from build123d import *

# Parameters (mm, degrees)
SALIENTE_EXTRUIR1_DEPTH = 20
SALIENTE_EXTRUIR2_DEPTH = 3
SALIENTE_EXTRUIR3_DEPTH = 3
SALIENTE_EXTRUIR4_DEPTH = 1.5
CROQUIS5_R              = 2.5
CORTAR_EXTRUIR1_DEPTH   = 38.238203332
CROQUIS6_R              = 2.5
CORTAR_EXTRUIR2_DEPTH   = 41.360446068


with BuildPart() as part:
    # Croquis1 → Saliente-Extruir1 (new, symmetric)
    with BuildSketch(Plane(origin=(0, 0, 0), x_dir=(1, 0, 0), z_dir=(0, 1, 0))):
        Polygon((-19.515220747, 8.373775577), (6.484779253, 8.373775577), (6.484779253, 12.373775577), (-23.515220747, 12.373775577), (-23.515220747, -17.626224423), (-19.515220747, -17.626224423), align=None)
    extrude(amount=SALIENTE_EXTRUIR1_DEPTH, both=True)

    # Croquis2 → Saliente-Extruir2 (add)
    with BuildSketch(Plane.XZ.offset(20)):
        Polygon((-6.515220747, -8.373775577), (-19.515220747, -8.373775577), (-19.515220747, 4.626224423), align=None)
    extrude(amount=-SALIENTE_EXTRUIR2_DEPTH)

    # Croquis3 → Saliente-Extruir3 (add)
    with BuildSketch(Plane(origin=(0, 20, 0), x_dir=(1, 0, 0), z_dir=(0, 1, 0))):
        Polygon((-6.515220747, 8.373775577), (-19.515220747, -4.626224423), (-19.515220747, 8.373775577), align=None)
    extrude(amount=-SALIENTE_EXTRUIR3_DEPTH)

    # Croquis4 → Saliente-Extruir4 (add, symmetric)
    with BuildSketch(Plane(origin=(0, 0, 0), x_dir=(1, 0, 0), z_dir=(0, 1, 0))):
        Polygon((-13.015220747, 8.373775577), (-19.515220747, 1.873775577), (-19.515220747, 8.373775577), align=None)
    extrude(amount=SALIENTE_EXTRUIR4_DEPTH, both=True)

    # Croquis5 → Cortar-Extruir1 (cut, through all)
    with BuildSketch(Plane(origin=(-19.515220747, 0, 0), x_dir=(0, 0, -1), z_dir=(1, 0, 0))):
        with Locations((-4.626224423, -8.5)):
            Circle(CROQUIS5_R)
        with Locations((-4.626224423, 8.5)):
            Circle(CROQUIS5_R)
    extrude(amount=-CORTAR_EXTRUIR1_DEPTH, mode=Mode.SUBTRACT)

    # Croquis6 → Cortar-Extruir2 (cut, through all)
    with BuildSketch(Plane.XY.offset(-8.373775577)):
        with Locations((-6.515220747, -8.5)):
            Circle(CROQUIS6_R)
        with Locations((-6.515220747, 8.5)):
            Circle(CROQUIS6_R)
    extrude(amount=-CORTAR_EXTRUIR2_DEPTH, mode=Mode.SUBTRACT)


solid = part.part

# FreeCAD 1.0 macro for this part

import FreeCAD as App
import Part
import Sketcher

doc = App.newDocument("Part")
params = doc.addObject("Spreadsheet::Sheet", "Params")
for row, (alias, value) in enumerate([
    ("sketch1_width", "26 mm"),
    ("sketch1_width2", "30 mm"),
    ("pad1_length", "40 mm"),
    ("sketch2_width", "13 mm"),
    ("pad2_length", "3 mm"),
    ("sketch3_width", "13 mm"),
    ("pad3_length", "3 mm"),
    ("sketch4_width", "6.5 mm"),
    ("pad4_length", "3 mm"),
    ("sketch5_diameter", "5 mm"),
    ("sketch6_diameter", "5 mm"),
], start=1):
    params.set(f"A{row}", alias)
    params.set(f"B{row}", "=" + value)
    params.setAlias(f"B{row}", alias)

body = doc.addObject("PartDesign::Body", "Body")

sketch1 = body.newObject("Sketcher::SketchObject", "Sketch")
sketch1.AttachmentSupport = (doc.getObject("XZ_Plane"), [""])
sketch1.MapMode = "FlatFace"
sketch1.addGeometry([
    Part.LineSegment(App.Vector(-19.5, -8.4, 0), App.Vector(6.5, -8.4, 0)),
    Part.LineSegment(App.Vector(6.5, -8.4, 0), App.Vector(6.5, -12.4, 0)),
    Part.LineSegment(App.Vector(6.5, -12.4, 0), App.Vector(-23.5, -12.4, 0)),
    Part.LineSegment(App.Vector(-23.5, -12.4, 0), App.Vector(-23.5, 17.6, 0)),
    Part.LineSegment(App.Vector(-23.5, 17.6, 0), App.Vector(-19.5, 17.6, 0)),
    Part.LineSegment(App.Vector(-19.5, 17.6, 0), App.Vector(-19.5, -8.4, 0)),
], False)
sketch1.addConstraint([
    Sketcher.Constraint("Coincident", 0, 2, 1, 1),
    Sketcher.Constraint("Coincident", 1, 2, 2, 1),
    Sketcher.Constraint("Coincident", 2, 2, 3, 1),
    Sketcher.Constraint("Coincident", 3, 2, 4, 1),
    Sketcher.Constraint("Coincident", 4, 2, 5, 1),
    Sketcher.Constraint("Coincident", 5, 2, 0, 1),
    Sketcher.Constraint("Horizontal", 0),
    Sketcher.Constraint("Vertical", 1),
    Sketcher.Constraint("Horizontal", 2),
    Sketcher.Constraint("Vertical", 3),
    Sketcher.Constraint("Horizontal", 4),
    Sketcher.Constraint("Vertical", 5),
    Sketcher.Constraint("Equal", 4, 1),
    Sketcher.Constraint("Equal", 2, 3),
    Sketcher.Constraint("DistanceX", 0, 1, 0, 2, 26.0),
    Sketcher.Constraint("DistanceX", 2, 2, 2, 1, 30.0),
    Sketcher.Constraint("DistanceX", -1, 1, 0, 2, 6.484779),
    Sketcher.Constraint("DistanceY", 0, 2, -1, 1, 8.373776),
])
sketch1.setExpression("Constraints[14]", "Params.sketch1_width")
sketch1.setExpression("Constraints[15]", "Params.sketch1_width2")
pad1 = body.newObject("PartDesign::Pad", "Pad")
pad1.Profile = sketch1
pad1.setExpression("Length", "Params.pad1_length")
pad1.Midplane = True

sketch2 = body.newObject("Sketcher::SketchObject", "Sketch001")
sketch2.AttachmentSupport = (doc.getObject("XZ_Plane"), [""])
sketch2.MapMode = "FlatFace"
sketch2.AttachmentOffset = App.Placement(App.Vector(0, 0, 20), App.Rotation())
sketch2.addGeometry([
    Part.LineSegment(App.Vector(-20, -8, 0), App.Vector(-7, -8, 0)),
    Part.LineSegment(App.Vector(-7, -8, 0), App.Vector(-20, 5, 0)),
    Part.LineSegment(App.Vector(-20, 5, 0), App.Vector(-20, -8, 0)),
], False)
sketch2.addConstraint([
    Sketcher.Constraint("Coincident", 0, 2, 1, 1),
    Sketcher.Constraint("Coincident", 1, 2, 2, 1),
    Sketcher.Constraint("Coincident", 2, 2, 0, 1),
    Sketcher.Constraint("Horizontal", 0),
    Sketcher.Constraint("Vertical", 2),
    Sketcher.Constraint("Equal", 0, 2),
    Sketcher.Constraint("DistanceX", 0, 1, 0, 2, 13.0),
    Sketcher.Constraint("DistanceX", 0, 2, -1, 1, 6.515221),
    Sketcher.Constraint("DistanceY", 0, 2, -1, 1, 8.373776),
])
sketch2.setExpression("Constraints[6]", "Params.sketch2_width")
pad2 = body.newObject("PartDesign::Pad", "Pad001")
pad2.Profile = sketch2
pad2.setExpression("Length", "Params.pad2_length")
pad2.Reversed = True

sketch3 = body.newObject("Sketcher::SketchObject", "Sketch002")
sketch3.AttachmentSupport = (doc.getObject("XZ_Plane"), [""])
sketch3.MapMode = "FlatFace"
sketch3.AttachmentOffset = App.Placement(App.Vector(0, 0, -20), App.Rotation())
sketch3.addGeometry([
    Part.LineSegment(App.Vector(-20, 5, 0), App.Vector(-7, -8, 0)),
    Part.LineSegment(App.Vector(-7, -8, 0), App.Vector(-20, -8, 0)),
    Part.LineSegment(App.Vector(-20, -8, 0), App.Vector(-20, 5, 0)),
], False)
sketch3.addConstraint([
    Sketcher.Constraint("Coincident", 0, 2, 1, 1),
    Sketcher.Constraint("Coincident", 1, 2, 2, 1),
    Sketcher.Constraint("Coincident", 2, 2, 0, 1),
    Sketcher.Constraint("Horizontal", 1),
    Sketcher.Constraint("Vertical", 2),
    Sketcher.Constraint("Equal", 1, 2),
    Sketcher.Constraint("DistanceX", 1, 2, 1, 1, 13.0),
    Sketcher.Constraint("DistanceX", 0, 2, -1, 1, 6.515221),
    Sketcher.Constraint("DistanceY", 0, 2, -1, 1, 8.373776),
])
sketch3.setExpression("Constraints[6]", "Params.sketch3_width")
pad3 = body.newObject("PartDesign::Pad", "Pad002")
pad3.Profile = sketch3
pad3.setExpression("Length", "Params.pad3_length")

sketch4 = body.newObject("Sketcher::SketchObject", "Sketch003")
sketch4.AttachmentSupport = (doc.getObject("XZ_Plane"), [""])
sketch4.MapMode = "FlatFace"
sketch4.addGeometry([
    Part.LineSegment(App.Vector(-20, -2, 0), App.Vector(-13, -8, 0)),
    Part.LineSegment(App.Vector(-13, -8, 0), App.Vector(-20, -8, 0)),
    Part.LineSegment(App.Vector(-20, -8, 0), App.Vector(-20, -2, 0)),
], False)
sketch4.addConstraint([
    Sketcher.Constraint("Coincident", 0, 2, 1, 1),
    Sketcher.Constraint("Coincident", 1, 2, 2, 1),
    Sketcher.Constraint("Coincident", 2, 2, 0, 1),
    Sketcher.Constraint("Horizontal", 1),
    Sketcher.Constraint("Vertical", 2),
    Sketcher.Constraint("Equal", 1, 2),
    Sketcher.Constraint("DistanceX", 1, 2, 1, 1, 6.5),
    Sketcher.Constraint("DistanceX", 0, 2, -1, 1, 13.015221),
    Sketcher.Constraint("DistanceY", 0, 2, -1, 1, 8.373776),
])
sketch4.setExpression("Constraints[6]", "Params.sketch4_width")
pad4 = body.newObject("PartDesign::Pad", "Pad003")
pad4.Profile = sketch4
pad4.setExpression("Length", "Params.pad4_length")
pad4.Midplane = True

sketch5 = body.newObject("Sketcher::SketchObject", "Sketch004")
sketch5.AttachmentSupport = (doc.getObject("YZ_Plane"), [""])
sketch5.MapMode = "FlatFace"
sketch5.AttachmentOffset = App.Placement(App.Vector(0, 0, -19.515221), App.Rotation())
sketch5.addGeometry([
    Part.Circle(App.Vector(-8.5, 4.6, 0), App.Vector(0, 0, 1), 2.5),
    Part.Circle(App.Vector(8.5, 4.6, 0), App.Vector(0, 0, 1), 2.5),
], False)
sketch5.addConstraint([
    Sketcher.Constraint("Equal", 0, 1),
    Sketcher.Constraint("Symmetric", 0, 3, 1, 3, -2),
    Sketcher.Constraint("Diameter", 0, 5.0),
    Sketcher.Constraint("DistanceX", 0, 3, 1, 3, 17.0),
    Sketcher.Constraint("DistanceY", -1, 1, 0, 3, 4.626224),
])
sketch5.setExpression("Constraints[2]", "Params.sketch5_diameter")
pocket1 = body.newObject("PartDesign::Pocket", "Pocket")
pocket1.Profile = sketch5
pocket1.Type = "ThroughAll"

sketch6 = body.newObject("Sketcher::SketchObject", "Sketch005")
sketch6.AttachmentSupport = (doc.getObject("XY_Plane"), [""])
sketch6.MapMode = "FlatFace"
sketch6.AttachmentOffset = App.Placement(App.Vector(0, 0, -8.373776), App.Rotation())
sketch6.addGeometry([
    Part.Circle(App.Vector(-6.5, -8.5, 0), App.Vector(0, 0, 1), 2.5),
    Part.Circle(App.Vector(-6.5, 8.5, 0), App.Vector(0, 0, 1), 2.5),
], False)
sketch6.addConstraint([
    Sketcher.Constraint("Equal", 0, 1),
    Sketcher.Constraint("Symmetric", 0, 3, 1, 3, -1),
    Sketcher.Constraint("Diameter", 0, 5.0),
    Sketcher.Constraint("DistanceY", 0, 3, 1, 3, 17.0),
    Sketcher.Constraint("DistanceX", 0, 3, -1, 1, 6.515221),
])
sketch6.setExpression("Constraints[2]", "Params.sketch6_diameter")
pocket2 = body.newObject("PartDesign::Pocket", "Pocket001")
pocket2.Profile = sketch6
pocket2.Type = "ThroughAll"

doc.recompute()
